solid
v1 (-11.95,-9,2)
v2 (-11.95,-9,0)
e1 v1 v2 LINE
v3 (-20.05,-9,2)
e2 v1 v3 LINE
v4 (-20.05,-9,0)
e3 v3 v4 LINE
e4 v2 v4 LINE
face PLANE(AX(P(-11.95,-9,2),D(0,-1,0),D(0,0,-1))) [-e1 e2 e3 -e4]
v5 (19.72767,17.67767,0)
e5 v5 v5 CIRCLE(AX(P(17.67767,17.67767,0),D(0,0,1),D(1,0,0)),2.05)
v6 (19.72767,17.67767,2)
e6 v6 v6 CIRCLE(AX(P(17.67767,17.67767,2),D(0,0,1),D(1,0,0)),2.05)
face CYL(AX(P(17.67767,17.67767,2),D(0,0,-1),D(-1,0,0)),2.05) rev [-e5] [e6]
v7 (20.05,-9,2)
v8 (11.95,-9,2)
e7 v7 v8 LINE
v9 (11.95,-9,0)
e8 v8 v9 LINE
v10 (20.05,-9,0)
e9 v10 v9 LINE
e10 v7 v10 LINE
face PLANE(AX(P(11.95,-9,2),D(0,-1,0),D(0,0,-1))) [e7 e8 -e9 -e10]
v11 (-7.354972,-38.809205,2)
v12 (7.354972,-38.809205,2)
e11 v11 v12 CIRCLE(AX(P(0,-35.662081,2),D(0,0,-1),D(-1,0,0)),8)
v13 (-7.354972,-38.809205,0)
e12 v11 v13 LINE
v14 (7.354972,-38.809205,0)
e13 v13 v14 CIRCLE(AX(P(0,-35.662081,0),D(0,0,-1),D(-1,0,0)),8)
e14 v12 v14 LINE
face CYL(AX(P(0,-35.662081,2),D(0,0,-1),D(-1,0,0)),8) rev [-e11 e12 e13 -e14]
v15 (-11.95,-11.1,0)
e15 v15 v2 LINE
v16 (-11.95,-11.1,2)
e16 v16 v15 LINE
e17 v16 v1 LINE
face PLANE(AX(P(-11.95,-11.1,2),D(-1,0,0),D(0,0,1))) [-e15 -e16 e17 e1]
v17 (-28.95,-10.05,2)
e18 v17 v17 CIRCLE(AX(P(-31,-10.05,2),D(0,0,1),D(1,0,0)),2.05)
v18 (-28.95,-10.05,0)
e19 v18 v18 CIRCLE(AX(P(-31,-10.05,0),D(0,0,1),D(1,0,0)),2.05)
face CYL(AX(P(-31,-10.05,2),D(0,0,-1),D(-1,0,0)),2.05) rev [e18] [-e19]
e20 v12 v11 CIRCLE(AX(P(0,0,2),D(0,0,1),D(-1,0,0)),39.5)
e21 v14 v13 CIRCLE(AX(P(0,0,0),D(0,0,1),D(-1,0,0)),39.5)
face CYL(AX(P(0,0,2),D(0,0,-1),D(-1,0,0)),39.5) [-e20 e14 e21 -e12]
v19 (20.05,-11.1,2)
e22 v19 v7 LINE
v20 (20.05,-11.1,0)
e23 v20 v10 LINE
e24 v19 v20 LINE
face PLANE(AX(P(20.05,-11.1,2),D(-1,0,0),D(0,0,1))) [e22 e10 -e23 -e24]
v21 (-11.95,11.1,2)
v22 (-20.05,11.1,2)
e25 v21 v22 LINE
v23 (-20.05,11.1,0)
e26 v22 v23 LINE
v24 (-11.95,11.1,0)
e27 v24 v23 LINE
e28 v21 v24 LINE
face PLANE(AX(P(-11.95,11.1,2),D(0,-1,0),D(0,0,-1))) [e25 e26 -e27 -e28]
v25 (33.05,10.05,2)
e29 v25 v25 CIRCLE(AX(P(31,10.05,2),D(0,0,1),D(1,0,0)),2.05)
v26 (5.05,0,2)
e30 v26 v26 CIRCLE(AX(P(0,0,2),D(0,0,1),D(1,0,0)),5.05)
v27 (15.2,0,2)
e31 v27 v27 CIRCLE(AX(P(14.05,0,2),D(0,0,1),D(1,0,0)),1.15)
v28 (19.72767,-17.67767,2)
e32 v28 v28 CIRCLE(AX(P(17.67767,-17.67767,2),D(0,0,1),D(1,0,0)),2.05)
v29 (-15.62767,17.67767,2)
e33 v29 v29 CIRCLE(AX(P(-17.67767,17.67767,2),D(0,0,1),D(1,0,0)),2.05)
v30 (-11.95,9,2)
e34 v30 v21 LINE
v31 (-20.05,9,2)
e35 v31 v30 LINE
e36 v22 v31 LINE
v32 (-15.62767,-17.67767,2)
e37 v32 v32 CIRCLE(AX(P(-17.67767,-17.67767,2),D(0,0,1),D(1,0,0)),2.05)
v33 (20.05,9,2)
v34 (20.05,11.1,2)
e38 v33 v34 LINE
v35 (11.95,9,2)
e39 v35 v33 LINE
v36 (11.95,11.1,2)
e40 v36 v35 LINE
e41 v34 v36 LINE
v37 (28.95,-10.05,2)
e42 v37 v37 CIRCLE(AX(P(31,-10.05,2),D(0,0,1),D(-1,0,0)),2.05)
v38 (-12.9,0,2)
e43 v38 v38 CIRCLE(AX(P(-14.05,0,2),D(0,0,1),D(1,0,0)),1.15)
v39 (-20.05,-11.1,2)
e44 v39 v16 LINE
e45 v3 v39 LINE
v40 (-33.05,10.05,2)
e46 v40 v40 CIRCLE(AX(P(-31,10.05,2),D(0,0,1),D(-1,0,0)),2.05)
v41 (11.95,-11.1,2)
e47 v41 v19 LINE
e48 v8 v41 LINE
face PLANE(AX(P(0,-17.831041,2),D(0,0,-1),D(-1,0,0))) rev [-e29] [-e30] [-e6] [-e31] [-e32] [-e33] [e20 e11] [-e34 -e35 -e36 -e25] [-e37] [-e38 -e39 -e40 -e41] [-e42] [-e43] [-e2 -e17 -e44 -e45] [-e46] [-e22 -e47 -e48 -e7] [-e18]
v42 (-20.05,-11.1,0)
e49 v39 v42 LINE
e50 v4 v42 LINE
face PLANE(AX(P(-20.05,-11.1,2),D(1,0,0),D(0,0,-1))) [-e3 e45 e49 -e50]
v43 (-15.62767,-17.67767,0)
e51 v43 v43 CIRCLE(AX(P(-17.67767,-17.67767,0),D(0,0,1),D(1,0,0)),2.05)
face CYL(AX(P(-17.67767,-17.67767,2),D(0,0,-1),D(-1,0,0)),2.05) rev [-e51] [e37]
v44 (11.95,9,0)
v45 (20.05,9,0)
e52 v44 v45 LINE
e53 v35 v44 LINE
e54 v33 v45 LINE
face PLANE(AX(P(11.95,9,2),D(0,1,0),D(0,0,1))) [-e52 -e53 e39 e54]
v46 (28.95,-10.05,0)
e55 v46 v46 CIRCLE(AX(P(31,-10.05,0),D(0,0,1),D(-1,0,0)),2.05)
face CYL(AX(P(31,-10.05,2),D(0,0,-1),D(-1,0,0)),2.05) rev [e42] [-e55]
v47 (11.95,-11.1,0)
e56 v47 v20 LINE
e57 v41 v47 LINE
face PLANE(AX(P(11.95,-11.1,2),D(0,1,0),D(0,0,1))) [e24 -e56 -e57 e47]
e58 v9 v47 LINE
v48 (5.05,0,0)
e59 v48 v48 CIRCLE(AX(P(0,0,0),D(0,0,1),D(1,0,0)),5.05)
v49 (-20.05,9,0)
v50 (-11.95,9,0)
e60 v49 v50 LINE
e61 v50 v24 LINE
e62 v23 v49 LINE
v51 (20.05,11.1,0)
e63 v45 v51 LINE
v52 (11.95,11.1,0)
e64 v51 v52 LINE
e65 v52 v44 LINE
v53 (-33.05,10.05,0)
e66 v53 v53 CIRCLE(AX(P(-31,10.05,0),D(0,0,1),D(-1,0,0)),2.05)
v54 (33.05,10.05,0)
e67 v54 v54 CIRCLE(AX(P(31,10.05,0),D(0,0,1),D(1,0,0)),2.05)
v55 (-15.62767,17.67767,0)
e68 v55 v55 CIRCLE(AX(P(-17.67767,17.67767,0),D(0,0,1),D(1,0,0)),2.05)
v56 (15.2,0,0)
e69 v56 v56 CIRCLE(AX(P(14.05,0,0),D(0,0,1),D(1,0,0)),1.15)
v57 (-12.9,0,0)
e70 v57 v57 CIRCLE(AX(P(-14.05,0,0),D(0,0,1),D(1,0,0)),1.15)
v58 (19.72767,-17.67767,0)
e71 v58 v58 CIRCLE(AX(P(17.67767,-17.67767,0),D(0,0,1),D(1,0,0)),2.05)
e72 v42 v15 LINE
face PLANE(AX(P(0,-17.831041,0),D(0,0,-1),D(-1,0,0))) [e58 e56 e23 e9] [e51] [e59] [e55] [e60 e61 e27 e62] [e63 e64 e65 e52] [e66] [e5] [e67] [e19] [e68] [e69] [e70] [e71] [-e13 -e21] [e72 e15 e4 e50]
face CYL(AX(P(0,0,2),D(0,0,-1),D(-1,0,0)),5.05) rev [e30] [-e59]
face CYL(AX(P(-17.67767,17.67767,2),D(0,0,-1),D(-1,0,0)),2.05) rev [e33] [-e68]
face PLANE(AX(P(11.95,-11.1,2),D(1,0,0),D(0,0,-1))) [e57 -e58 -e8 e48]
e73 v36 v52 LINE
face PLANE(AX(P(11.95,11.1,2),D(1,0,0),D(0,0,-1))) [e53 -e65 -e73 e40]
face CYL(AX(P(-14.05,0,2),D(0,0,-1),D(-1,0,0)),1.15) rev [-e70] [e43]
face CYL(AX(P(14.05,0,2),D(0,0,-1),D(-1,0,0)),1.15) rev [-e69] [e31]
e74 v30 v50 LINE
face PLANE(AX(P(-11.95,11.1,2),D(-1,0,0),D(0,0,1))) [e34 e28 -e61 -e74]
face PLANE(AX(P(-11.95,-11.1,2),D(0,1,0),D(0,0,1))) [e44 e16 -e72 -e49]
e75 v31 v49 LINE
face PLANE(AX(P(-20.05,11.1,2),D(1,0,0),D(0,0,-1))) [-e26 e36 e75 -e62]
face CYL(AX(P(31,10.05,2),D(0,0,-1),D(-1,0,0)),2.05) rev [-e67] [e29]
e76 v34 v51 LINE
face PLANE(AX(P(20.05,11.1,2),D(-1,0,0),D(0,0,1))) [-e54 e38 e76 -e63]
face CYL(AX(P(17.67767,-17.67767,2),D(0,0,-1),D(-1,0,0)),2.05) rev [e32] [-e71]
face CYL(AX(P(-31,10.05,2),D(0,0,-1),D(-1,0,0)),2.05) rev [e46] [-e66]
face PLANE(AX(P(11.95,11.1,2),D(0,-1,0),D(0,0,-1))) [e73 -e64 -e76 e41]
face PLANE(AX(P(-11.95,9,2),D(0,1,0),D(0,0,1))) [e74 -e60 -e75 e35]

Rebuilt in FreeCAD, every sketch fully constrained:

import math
import FreeCAD as App
import Part
import Sketcher

V = App.Vector
Q = App.Units.Quantity


def add_polygon(sketch, points):
    """Adds a closed chain of lines whose ends are joined by coincident constraints."""
    first, n = sketch.GeometryCount, len(points)
    for a, b in zip(points, points[1:] + points[:1]):
        sketch.addGeometry(Part.LineSegment(App.Vector(*a, 0), App.Vector(*b, 0)), False)
    for i in range(n):
        sketch.addConstraint(Sketcher.Constraint("Coincident", first + i, 2, first + (i + 1) % n, 1))

doc = App.newDocument("Part")
params = doc.addObject("Spreadsheet::Sheet", "Params")
for row, (alias, value) in enumerate([
    ("sketch1_radius", "8 mm"),
    ("sketch1_diameter", "4.1 mm"),
    ("sketch1_diameter2", "2.3 mm"),
    ("sketch1_diameter3", "10.1 mm"),
    ("sketch1_radius2", "39.5 mm"),
    ("pad1_length", "2 mm"),
], start=1):
    params.set(f"A{row}", alias)
    params.set(f"B{row}", "=" + value)
    params.setAlias(f"B{row}", alias)

body = doc.addObject("PartDesign::Body", "Body")

sketch1 = doc.addObject("Sketcher::SketchObject", "Sketch")
body.addObject(sketch1)
sketch1.AttachmentSupport = (doc.XY_Plane, [""])
sketch1.MapMode = "FlatFace"
sketch1.addGeometry(Part.ArcOfCircle(Part.Circle(V(0, 0, 0), V(0, 0, 1), 39.5), math.radians(-79), math.radians(259)), False)
sketch1.addGeometry(Part.ArcOfCircle(Part.Circle(V(0, -35.7, 0), V(0, 0, 1), 8), math.radians(-23), math.radians(203)), False)
sketch1.addGeometry(Part.Circle(V(17.7, -17.7, 0), V(0, 0, 1), 2), False)
sketch1.addGeometry(Part.Circle(V(31, -10.1, 0), V(0, 0, 1), 2), False)
add_polygon(sketch1, [(11.9, -11.1), (11.9, -9), (20.1, -9), (20.1, -11.1)])
add_polygon(sketch1, [(-20.1, -11.1), (-20.1, -9), (-11.9, -9), (-11.9, -11.1)])
sketch1.addGeometry(Part.Circle(V(-17.7, -17.7, 0), V(0, 0, 1), 2), False)
sketch1.addGeometry(Part.Circle(V(-31, -10.1, 0), V(0, 0, 1), 2), False)
sketch1.addGeometry(Part.Circle(V(14.1, 0, 0), V(0, 0, 1), 1.1), False)
sketch1.addGeometry(Part.Circle(V(31, 10.1, 0), V(0, 0, 1), 2), False)
sketch1.addGeometry(Part.Circle(V(17.7, 17.7, 0), V(0, 0, 1), 2), False)
add_polygon(sketch1, [(11.9, 9), (11.9, 11.1), (20.1, 11.1), (20.1, 9)])
sketch1.addGeometry(Part.Circle(V(0, 0, 0), V(0, 0, 1), 5), False)
sketch1.addGeometry(Part.Circle(V(-14.1, 0, 0), V(0, 0, 1), 1.1), False)
add_polygon(sketch1, [(-20.1, 9), (-20.1, 11.1), (-11.9, 11.1), (-11.9, 9)])
sketch1.addGeometry(Part.Circle(V(-31, 10.1, 0), V(0, 0, 1), 2), False)
sketch1.addGeometry(Part.Circle(V(-17.7, 17.7, 0), V(0, 0, 1), 2), False)
sketch1.addConstraint([
    Sketcher.Constraint("Coincident", 0, 1, 1, 1),
    Sketcher.Constraint("Coincident", 1, 2, 0, 2),
    Sketcher.Constraint("Vertical", 4),
    Sketcher.Constraint("Horizontal", 5),
    Sketcher.Constraint("Vertical", 6),
    Sketcher.Constraint("Horizontal", 7),
    Sketcher.Constraint("Vertical", 8),
    Sketcher.Constraint("Horizontal", 9),
    Sketcher.Constraint("Vertical", 10),
    Sketcher.Constraint("Horizontal", 11),
    Sketcher.Constraint("Vertical", 17),
    Sketcher.Constraint("Horizontal", 18),
    Sketcher.Constraint("Vertical", 19),
    Sketcher.Constraint("Horizontal", 20),
    Sketcher.Constraint("Vertical", 23),
    Sketcher.Constraint("Horizontal", 24),
    Sketcher.Constraint("Vertical", 25),
    Sketcher.Constraint("Horizontal", 26),
    Sketcher.Constraint("Coincident", 0, 3, -1, 1),
    Sketcher.Constraint("Coincident", 21, 3, -1, 1),
    Sketcher.Constraint("Equal", 2, 3),
    Sketcher.Constraint("Equal", 3, 12),
    Sketcher.Constraint("Equal", 12, 13),
    Sketcher.Constraint("Equal", 13, 15),
    Sketcher.Constraint("Equal", 15, 16),
    Sketcher.Constraint("Equal", 14, 22),
    Sketcher.Constraint("Equal", 16, 27),
    Sketcher.Constraint("Equal", 27, 28),
    Sketcher.Constraint("Symmetric", 13, 3, 15, 3, -1, 1),
    Sketcher.Constraint("Symmetric", 12, 3, 16, 3, -1, 1),
    Sketcher.Constraint("Symmetric", 14, 3, 22, 3, -1, 1),
    Sketcher.Constraint("Symmetric", 3, 3, 27, 3, -1, 1),
    Sketcher.Constraint("Symmetric", 2, 3, 28, 3, -1, 1),
    Sketcher.Constraint("Symmetric", 10, 2, 17, 2, -1, 1),
    Sketcher.Constraint("Symmetric", 8, 2, 19, 2, -1, 1),
    Sketcher.Constraint("Symmetric", 6, 2, 23, 2, -1, 1),
    Sketcher.Constraint("Symmetric", 4, 2, 25, 2, -1, 1),
    Sketcher.Constraint("Symmetric", 2, 3, 12, 3, -2),
    Sketcher.Constraint("Symmetric", 3, 3, 13, 3, -2),
    Sketcher.Constraint("Symmetric", 5, 2, 8, 2, -2),
    Sketcher.Constraint("Symmetric", 7, 2, 10, 2, -2),
    Sketcher.Constraint("PointOnObject", 1, 3, -2),
    Sketcher.Constraint("PointOnObject", 14, 3, -1),
    Sketcher.Constraint("Radius", 1, Q("8 mm")),
    Sketcher.Constraint("Diameter", 2, Q("4.1 mm")),
    Sketcher.Constraint("Diameter", 14, Q("2.3 mm")),
    Sketcher.Constraint("Diameter", 21, Q("10.1 mm")),
    Sketcher.Constraint("Radius", 0, Q("39.5 mm")),
    Sketcher.Constraint("DistanceX", 5, 1, 5, 2, Q("8.1 mm")),
    Sketcher.Constraint("DistanceY", 4, 1, 4, 2, Q("2.1 mm")),
    Sketcher.Constraint("DistanceX", -1, 1, 3, 3, Q("31 mm")),
    Sketcher.Constraint("DistanceY", 4, 2, -1, 1, Q("9 mm")),
    Sketcher.Constraint("DistanceX", 14, 3, 5, 2, Q("6 mm")),
    Sketcher.Constraint("DistanceY", 3, 3, 15, 3, Q("20.1 mm")),
    Sketcher.Constraint("DistanceX", 22, 3, 14, 3, Q("28.1 mm")),
    Sketcher.Constraint("DistanceY", 1, 3, -1, 1, Q("35.662081 mm")),
    Sketcher.Constraint("DistanceX", -1, 1, 2, 3, Q("17.67767 mm")),
    Sketcher.Constraint("DistanceY", 2, 3, -1, 1, Q("17.67767 mm")),
])
sketch1.setExpression("Constraints[59]", "Params.sketch1_radius")
sketch1.setExpression("Constraints[60]", "Params.sketch1_diameter")
sketch1.setExpression("Constraints[61]", "Params.sketch1_diameter2")
sketch1.setExpression("Constraints[62]", "Params.sketch1_diameter3")
sketch1.setExpression("Constraints[63]", "Params.sketch1_radius2")
pad1 = doc.addObject("PartDesign::Pad", "Pad")
body.addObject(pad1)
pad1.Profile = sketch1
pad1.setExpression("Length", "Params.pad1_length")

doc.recompute()
